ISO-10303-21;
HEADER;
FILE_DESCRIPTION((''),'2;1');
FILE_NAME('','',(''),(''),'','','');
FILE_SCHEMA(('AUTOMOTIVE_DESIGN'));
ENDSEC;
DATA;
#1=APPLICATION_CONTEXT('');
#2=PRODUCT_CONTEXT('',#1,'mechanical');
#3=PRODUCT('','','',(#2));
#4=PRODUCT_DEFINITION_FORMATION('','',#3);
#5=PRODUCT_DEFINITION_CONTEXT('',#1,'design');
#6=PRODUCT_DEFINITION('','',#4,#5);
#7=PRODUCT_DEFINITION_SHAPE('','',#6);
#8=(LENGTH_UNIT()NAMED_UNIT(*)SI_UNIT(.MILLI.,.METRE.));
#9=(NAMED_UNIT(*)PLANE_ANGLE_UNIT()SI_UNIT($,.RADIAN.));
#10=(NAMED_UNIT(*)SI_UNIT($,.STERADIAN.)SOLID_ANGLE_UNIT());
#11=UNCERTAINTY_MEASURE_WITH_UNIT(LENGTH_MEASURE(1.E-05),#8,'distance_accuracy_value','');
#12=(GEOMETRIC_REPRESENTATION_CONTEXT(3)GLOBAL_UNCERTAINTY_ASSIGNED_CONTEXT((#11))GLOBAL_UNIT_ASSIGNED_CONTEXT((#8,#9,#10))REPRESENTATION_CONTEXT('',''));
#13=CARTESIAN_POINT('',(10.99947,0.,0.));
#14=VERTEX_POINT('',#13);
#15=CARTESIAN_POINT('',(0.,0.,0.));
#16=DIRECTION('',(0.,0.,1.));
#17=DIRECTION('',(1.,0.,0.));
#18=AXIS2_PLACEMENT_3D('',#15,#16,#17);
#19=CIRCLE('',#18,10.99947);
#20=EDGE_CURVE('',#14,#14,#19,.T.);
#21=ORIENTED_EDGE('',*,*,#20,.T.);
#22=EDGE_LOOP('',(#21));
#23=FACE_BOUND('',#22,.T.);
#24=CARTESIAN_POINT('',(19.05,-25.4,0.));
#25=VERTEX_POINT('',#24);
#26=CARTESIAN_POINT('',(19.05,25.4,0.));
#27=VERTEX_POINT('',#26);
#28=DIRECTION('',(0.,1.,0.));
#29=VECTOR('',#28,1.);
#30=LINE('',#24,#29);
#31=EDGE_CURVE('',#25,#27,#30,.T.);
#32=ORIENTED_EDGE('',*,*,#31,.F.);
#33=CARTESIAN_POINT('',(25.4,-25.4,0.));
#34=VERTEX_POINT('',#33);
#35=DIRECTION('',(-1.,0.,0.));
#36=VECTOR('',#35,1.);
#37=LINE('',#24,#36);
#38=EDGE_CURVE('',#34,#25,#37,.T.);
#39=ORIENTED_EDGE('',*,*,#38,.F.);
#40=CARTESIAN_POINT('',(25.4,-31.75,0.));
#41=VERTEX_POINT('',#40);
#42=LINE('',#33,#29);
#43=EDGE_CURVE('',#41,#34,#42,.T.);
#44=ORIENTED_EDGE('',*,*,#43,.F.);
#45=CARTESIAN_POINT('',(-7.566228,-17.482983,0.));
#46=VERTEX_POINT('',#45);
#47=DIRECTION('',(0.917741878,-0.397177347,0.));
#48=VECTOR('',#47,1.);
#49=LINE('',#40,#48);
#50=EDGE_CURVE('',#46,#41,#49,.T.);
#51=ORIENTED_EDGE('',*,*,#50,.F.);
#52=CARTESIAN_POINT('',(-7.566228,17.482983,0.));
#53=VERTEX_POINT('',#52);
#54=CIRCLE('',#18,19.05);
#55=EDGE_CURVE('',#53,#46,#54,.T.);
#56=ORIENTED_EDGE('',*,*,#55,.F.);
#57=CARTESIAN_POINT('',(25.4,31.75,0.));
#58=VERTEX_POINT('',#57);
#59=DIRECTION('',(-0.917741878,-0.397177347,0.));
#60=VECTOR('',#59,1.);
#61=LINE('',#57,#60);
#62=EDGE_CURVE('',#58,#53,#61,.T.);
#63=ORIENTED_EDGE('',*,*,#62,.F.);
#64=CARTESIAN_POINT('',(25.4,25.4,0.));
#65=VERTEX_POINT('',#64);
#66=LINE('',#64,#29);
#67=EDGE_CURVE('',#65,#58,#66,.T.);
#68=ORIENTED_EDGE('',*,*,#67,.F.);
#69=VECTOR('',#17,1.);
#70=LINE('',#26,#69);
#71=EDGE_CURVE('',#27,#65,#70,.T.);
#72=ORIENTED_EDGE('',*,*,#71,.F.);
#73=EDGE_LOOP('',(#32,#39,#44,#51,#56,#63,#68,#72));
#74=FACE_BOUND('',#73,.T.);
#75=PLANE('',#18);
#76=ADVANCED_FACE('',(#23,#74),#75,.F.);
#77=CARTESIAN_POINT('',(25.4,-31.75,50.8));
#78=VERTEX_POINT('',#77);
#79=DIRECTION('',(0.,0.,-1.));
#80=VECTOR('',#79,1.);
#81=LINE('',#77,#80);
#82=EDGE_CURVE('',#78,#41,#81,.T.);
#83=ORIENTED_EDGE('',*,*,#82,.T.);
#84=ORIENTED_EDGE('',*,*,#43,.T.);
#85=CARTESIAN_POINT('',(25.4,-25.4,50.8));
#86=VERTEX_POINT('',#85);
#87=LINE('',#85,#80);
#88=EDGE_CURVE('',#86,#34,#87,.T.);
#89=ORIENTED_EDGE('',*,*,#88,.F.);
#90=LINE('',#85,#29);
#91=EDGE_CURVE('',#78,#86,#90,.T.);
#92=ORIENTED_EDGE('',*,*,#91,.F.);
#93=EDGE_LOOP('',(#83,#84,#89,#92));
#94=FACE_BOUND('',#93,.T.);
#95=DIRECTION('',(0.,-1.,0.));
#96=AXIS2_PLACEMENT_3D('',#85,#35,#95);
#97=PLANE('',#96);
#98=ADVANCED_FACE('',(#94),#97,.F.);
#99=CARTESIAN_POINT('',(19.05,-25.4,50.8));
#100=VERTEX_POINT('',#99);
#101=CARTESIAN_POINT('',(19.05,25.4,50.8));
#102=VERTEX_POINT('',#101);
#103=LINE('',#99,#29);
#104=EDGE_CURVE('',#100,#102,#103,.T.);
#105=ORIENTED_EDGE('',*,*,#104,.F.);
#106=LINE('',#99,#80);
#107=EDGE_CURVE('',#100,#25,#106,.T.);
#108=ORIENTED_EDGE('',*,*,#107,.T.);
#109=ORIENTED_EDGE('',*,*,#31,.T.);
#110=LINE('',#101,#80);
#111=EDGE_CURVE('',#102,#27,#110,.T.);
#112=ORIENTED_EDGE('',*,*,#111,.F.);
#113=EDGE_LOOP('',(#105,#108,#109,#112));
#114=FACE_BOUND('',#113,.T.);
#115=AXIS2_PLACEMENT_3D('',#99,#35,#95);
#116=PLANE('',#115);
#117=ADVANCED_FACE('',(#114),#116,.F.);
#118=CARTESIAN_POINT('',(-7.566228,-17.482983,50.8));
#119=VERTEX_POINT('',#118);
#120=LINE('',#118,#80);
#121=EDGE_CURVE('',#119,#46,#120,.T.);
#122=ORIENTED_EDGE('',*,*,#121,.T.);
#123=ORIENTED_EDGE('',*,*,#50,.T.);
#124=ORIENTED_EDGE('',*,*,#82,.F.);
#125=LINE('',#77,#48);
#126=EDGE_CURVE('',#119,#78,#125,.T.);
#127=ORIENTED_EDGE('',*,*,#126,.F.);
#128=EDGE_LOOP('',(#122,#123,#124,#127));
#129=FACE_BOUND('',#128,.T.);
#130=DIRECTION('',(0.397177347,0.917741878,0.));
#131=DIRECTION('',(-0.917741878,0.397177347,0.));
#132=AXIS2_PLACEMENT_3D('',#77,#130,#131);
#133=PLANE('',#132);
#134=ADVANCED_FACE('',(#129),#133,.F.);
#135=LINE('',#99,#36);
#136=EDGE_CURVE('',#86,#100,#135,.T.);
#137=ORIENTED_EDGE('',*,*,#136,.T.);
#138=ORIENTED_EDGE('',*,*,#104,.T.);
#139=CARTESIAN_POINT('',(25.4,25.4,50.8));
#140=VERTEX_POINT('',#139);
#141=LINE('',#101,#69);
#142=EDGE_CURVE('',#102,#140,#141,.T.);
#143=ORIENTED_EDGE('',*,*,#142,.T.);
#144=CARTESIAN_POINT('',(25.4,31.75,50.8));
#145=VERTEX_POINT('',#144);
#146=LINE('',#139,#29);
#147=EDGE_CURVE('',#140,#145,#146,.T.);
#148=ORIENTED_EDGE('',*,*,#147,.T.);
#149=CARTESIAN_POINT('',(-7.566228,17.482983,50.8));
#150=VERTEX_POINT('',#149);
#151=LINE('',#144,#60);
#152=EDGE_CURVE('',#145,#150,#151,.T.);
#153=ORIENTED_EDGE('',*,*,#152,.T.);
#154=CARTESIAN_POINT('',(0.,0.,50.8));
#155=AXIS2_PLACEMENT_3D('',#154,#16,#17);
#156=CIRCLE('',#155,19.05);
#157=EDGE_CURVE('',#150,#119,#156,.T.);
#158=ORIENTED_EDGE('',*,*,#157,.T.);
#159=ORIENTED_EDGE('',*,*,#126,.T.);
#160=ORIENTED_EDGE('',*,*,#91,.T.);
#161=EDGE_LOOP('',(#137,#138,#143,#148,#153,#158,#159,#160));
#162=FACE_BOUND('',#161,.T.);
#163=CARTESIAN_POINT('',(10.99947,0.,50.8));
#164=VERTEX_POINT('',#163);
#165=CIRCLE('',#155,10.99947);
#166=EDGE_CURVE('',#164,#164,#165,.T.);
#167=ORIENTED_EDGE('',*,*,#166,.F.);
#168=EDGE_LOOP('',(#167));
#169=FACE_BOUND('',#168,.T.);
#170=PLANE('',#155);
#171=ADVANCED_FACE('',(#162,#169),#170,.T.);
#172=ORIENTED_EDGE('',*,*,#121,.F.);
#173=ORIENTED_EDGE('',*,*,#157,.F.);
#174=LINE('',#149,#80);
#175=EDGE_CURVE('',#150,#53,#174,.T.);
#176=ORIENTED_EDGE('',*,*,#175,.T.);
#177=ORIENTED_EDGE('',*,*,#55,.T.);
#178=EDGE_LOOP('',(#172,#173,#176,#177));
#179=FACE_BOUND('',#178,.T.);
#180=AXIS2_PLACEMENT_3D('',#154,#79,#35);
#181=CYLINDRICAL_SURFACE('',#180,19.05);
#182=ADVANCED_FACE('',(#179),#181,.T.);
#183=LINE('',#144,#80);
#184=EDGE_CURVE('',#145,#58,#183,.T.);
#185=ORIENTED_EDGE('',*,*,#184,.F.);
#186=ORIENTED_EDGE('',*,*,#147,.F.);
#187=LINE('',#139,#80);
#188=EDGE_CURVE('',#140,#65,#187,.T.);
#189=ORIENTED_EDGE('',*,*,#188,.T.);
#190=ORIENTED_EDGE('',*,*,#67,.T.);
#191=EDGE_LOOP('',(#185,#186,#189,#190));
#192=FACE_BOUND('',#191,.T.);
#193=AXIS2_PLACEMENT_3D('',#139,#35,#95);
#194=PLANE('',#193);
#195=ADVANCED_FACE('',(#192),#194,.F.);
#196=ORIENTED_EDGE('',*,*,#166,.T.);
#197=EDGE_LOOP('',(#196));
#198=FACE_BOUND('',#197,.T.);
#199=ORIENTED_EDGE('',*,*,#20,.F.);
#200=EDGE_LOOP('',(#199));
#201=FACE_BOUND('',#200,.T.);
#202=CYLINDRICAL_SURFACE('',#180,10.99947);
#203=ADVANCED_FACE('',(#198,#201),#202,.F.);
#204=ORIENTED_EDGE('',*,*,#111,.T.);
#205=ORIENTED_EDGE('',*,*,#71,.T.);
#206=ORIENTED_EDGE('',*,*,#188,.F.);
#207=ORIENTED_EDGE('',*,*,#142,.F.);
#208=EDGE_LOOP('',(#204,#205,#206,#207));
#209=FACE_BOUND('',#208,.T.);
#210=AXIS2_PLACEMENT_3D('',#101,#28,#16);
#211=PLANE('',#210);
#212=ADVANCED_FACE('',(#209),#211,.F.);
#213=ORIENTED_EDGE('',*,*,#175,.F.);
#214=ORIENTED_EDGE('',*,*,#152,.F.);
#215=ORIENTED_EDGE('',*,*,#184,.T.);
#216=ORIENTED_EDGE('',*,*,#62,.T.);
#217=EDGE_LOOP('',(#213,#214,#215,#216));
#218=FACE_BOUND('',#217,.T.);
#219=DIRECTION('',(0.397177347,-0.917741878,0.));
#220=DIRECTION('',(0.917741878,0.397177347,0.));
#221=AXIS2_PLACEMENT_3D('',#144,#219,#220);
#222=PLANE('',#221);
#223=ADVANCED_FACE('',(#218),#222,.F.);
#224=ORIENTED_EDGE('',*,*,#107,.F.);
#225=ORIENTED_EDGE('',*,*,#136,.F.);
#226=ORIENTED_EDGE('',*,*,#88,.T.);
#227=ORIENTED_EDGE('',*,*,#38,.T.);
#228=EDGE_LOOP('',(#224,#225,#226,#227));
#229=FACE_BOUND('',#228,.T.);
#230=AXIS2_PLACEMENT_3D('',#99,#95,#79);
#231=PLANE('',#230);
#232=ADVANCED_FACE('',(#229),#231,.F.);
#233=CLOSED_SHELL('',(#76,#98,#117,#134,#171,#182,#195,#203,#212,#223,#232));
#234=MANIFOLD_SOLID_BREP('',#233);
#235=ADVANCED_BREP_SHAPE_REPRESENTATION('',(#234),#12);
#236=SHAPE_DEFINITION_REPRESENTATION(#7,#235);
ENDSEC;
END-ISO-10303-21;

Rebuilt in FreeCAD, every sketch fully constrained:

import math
import FreeCAD as App
import Part
import Sketcher
from FreeCAD import Vector
Q = App.Units.Quantity

doc = App.newDocument("Part")
body = doc.addObject("PartDesign::Body", "Body")

# Sketch on XY plane
sketch1 = doc.addObject("Sketcher::SketchObject", "Sketch")
body.addObject(sketch1)
sketch1.AttachmentSupport = (doc.XY_Plane, [""])
sketch1.MapMode = "FlatFace"
sketch1.addGeometry([
    Part.LineSegment(Vector(19, -25, 0), Vector(19, 25, 0)),  # 0
    Part.LineSegment(Vector(19, 25, 0), Vector(25, 25, 0)),  # 1
    Part.LineSegment(Vector(25, 25, 0), Vector(25, 32, 0)),  # 2
    Part.LineSegment(Vector(25, 32, 0), Vector(-8, 17, 0)),  # 3
    Part.ArcOfCircle(Part.Circle(Vector(0, 0, 0), Vector(0, 0, 1), 19), math.radians(113), math.radians(247)),  # 4
    Part.LineSegment(Vector(-8, -17, 0), Vector(25, -32, 0)),  # 5
    Part.LineSegment(Vector(25, -32, 0), Vector(25, -25, 0)),  # 6
    Part.LineSegment(Vector(25, -25, 0), Vector(19, -25, 0)),  # 7
    Part.Circle(Vector(0, 0, 0), Vector(0, 0, 1), 11),  # 8
], False)
sketch1.addConstraint([
    Sketcher.Constraint("Coincident", 0, 2, 1, 1),
    Sketcher.Constraint("Coincident", 1, 2, 2, 1),
    Sketcher.Constraint("Coincident", 2, 2, 3, 1),
    Sketcher.Constraint("Tangent", 3, 2, 4, 1),
    Sketcher.Constraint("Tangent", 4, 2, 5, 1),
    Sketcher.Constraint("Coincident", 5, 2, 6, 1),
    Sketcher.Constraint("Coincident", 6, 2, 7, 1),
    Sketcher.Constraint("Coincident", 7, 2, 0, 1),
    Sketcher.Constraint("Vertical", 0),
    Sketcher.Constraint("Horizontal", 1),
    Sketcher.Constraint("Vertical", 2),
    Sketcher.Constraint("Vertical", 6),
    Sketcher.Constraint("Horizontal", 7),
    Sketcher.Constraint("Coincident", 4, 3, -1, 1),
    Sketcher.Constraint("Coincident", 8, 3, -1, 1),
    Sketcher.Constraint("Symmetric", 2, 2, 5, 2, -1),
    Sketcher.Constraint("Equal", 7, 2),
    Sketcher.Constraint("Equal", 2, 6),
    Sketcher.Constraint("DistanceY", 0, 1, 0, 2, Q("2 in")),
    Sketcher.Constraint("Radius", 4, Q("0.75 in")),
    Sketcher.Constraint("DistanceX", -1, 1, 1, 2, Q("1 in")),
    Sketcher.Constraint("Diameter", 8, Q("0.8661 in")),
    Sketcher.Constraint("DistanceX", 1, 1, 1, 2, Q("0.25 in")),
])
pad1 = doc.addObject("PartDesign::Pad", "Pad")
body.addObject(pad1)
pad1.Profile = sketch1
pad1.Length = Q("2 in")

doc.recompute()
